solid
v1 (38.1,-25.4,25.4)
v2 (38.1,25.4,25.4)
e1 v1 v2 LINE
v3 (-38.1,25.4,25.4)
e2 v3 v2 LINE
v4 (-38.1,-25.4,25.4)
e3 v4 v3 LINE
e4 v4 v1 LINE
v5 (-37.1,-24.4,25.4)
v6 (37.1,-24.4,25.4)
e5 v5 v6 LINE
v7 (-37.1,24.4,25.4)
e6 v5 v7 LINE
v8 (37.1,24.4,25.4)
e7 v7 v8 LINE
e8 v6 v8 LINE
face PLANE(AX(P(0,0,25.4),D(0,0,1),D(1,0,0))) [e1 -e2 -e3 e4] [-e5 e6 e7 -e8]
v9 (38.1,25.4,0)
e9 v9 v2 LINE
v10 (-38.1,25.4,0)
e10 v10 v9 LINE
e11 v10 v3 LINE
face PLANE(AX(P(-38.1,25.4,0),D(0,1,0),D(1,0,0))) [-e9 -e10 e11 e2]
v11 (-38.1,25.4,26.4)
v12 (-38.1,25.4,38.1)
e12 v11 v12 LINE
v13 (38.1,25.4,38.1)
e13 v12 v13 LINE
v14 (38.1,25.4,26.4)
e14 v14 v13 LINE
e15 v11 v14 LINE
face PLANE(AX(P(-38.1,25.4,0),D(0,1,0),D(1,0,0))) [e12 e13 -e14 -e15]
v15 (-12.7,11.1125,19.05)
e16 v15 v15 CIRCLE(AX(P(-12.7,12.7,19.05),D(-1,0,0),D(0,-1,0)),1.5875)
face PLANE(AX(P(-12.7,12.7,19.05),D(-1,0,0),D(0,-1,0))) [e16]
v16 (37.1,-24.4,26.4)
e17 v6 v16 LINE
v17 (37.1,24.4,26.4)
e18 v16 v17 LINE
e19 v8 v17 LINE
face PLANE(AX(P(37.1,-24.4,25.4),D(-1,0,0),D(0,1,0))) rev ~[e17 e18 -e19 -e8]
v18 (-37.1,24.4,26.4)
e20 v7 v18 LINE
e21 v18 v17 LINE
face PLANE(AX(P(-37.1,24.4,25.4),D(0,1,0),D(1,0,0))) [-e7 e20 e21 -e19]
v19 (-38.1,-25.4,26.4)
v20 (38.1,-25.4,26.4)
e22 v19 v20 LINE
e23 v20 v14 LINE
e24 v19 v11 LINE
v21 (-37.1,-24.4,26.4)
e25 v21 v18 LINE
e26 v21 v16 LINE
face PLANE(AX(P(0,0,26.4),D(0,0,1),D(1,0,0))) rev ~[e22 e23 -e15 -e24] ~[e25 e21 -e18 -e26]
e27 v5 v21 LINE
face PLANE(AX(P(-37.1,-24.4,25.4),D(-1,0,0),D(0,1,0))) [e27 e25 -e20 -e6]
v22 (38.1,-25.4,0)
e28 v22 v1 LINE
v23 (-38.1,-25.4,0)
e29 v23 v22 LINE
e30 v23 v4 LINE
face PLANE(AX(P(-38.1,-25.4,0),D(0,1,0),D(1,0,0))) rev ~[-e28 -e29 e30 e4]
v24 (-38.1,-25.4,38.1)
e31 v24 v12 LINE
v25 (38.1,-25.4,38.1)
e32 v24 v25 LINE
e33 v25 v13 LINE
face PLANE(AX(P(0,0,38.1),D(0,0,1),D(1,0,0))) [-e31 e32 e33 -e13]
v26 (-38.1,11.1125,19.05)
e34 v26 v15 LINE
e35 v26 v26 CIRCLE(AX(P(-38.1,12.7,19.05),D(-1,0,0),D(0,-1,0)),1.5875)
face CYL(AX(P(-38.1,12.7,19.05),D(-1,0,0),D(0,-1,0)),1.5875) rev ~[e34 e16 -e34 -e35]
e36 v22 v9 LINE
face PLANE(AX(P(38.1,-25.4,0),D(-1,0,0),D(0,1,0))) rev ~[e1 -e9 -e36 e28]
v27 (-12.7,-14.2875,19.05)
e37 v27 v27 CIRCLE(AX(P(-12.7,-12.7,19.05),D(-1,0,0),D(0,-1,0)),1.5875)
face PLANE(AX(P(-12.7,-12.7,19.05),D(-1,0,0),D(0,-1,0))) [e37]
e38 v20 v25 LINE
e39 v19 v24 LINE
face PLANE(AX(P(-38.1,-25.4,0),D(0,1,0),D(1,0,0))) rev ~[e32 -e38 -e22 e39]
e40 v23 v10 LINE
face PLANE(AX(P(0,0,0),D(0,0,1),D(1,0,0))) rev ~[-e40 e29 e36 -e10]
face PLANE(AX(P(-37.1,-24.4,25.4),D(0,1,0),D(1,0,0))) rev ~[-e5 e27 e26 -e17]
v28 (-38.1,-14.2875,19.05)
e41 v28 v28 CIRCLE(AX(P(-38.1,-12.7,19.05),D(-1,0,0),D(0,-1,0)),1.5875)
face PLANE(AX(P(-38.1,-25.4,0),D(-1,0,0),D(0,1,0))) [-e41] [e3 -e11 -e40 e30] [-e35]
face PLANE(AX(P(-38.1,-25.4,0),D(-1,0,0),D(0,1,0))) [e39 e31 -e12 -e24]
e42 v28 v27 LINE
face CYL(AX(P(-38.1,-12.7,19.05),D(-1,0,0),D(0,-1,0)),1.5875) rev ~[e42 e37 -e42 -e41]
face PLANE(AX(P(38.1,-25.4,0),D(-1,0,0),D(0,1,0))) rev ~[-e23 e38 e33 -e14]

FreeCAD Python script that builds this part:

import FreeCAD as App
import Part
import Sketcher
Q = App.Units.Quantity

doc = App.newDocument("Part")
body = doc.addObject("PartDesign::Body", "Body")

# Sketch on XY plane
sketch1 = body.newObject("Sketcher::SketchObject", "Sketch")
sketch1.AttachmentSupport = (doc.getObject("XY_Plane"), [""])
sketch1.MapMode = "FlatFace"
sketch1.addGeometry([
    Part.LineSegment(App.Vector(-38, 25, 0), App.Vector(-38, -25, 0)),
    Part.LineSegment(App.Vector(-38, -25, 0), App.Vector(38, -25, 0)),
    Part.LineSegment(App.Vector(38, -25, 0), App.Vector(38, 25, 0)),
    Part.LineSegment(App.Vector(38, 25, 0), App.Vector(-38, 25, 0)),
], False)
sketch1.addConstraint([
    Sketcher.Constraint("Coincident", 0, 2, 1, 1),
    Sketcher.Constraint("Coincident", 1, 2, 2, 1),
    Sketcher.Constraint("Coincident", 2, 2, 3, 1),
    Sketcher.Constraint("Coincident", 3, 2, 0, 1),
    Sketcher.Constraint("Vertical", 0),
    Sketcher.Constraint("Horizontal", 1),
    Sketcher.Constraint("Vertical", 2),
    Sketcher.Constraint("Horizontal", 3),
    Sketcher.Constraint("Symmetric", 0, 2, 2, 2, -1, 1),
    Sketcher.Constraint("DistanceX", 1, 1, 1, 2, Q("3 in")),
    Sketcher.Constraint("DistanceY", 0, 2, 0, 1, Q("2 in")),
])
pad1 = body.newObject("PartDesign::Pad", "Pad")
pad1.Profile = sketch1
pad1.Length = Q("1.5 in")

# Sketch on XY plane
sketch2 = body.newObject("Sketcher::SketchObject", "Sketch001")
sketch2.AttachmentSupport = (doc.getObject("XY_Plane"), [""])
sketch2.MapMode = "FlatFace"
sketch2.AttachmentOffset = App.Placement(App.Vector(0, 0, 1 * 25.4), App.Rotation())
sketch2.addGeometry([
    Part.LineSegment(App.Vector(-38, 25, 0), App.Vector(-38, -25, 0)),  # 0
    Part.LineSegment(App.Vector(-38, -25, 0), App.Vector(38, -25, 0)),  # 1
    Part.LineSegment(App.Vector(38, -25, 0), App.Vector(38, 25, 0)),  # 2
    Part.LineSegment(App.Vector(38, 25, 0), App.Vector(-38, 25, 0)),  # 3
    Part.LineSegment(App.Vector(37, -24, 0), App.Vector(-37, -24, 0)),  # 4
    Part.LineSegment(App.Vector(-37, -24, 0), App.Vector(-37, 24, 0)),  # 5
    Part.LineSegment(App.Vector(-37, 24, 0), App.Vector(37, 24, 0)),  # 6
    Part.LineSegment(App.Vector(37, 24, 0), App.Vector(37, -24, 0)),  # 7
], False)
sketch2.addConstraint([
    Sketcher.Constraint("Coincident", 0, 2, 1, 1),
    Sketcher.Constraint("Coincident", 1, 2, 2, 1),
    Sketcher.Constraint("Coincident", 2, 2, 3, 1),
    Sketcher.Constraint("Coincident", 3, 2, 0, 1),
    Sketcher.Constraint("Coincident", 4, 2, 5, 1),
    Sketcher.Constraint("Coincident", 5, 2, 6, 1),
    Sketcher.Constraint("Coincident", 6, 2, 7, 1),
    Sketcher.Constraint("Coincident", 7, 2, 4, 1),
    Sketcher.Constraint("Vertical", 0),
    Sketcher.Constraint("Horizontal", 1),
    Sketcher.Constraint("Vertical", 2),
    Sketcher.Constraint("Horizontal", 3),
    Sketcher.Constraint("Horizontal", 4),
    Sketcher.Constraint("Vertical", 5),
    Sketcher.Constraint("Horizontal", 6),
    Sketcher.Constraint("Vertical", 7),
    Sketcher.Constraint("Symmetric", 0, 2, 2, 2, -1, 1),
    Sketcher.Constraint("Symmetric", 4, 2, 6, 2, -1, 1),
    Sketcher.Constraint("DistanceX", 1, 1, 1, 2, Q("3 in")),
    Sketcher.Constraint("DistanceY", 0, 2, 0, 1, Q("2 in")),
    Sketcher.Constraint("DistanceX", 4, 2, 4, 1, Q("74.2 mm")),
    Sketcher.Constraint("DistanceY", 5, 1, 5, 2, Q("48.8 mm")),
])
pocket1 = body.newObject("PartDesign::Pocket", "Pocket")
pocket1.Profile = sketch2
pocket1.Length = 1
pocket1.Reversed = True

# Sketch on YZ plane
sketch3 = body.newObject("Sketcher::SketchObject", "Sketch002")
sketch3.AttachmentSupport = (doc.getObject("YZ_Plane"), [""])
sketch3.MapMode = "FlatFace"
sketch3.AttachmentOffset = App.Placement(App.Vector(0, 0, -1.5 * 25.4), App.Rotation())
sketch3.addGeometry([
    Part.Circle(App.Vector(12.7, 19.1, 0), App.Vector(0, 0, 1), 1.6),
    Part.Circle(App.Vector(-12.7, 19.1, 0), App.Vector(0, 0, 1), 1.6),
], False)
sketch3.addConstraint([
    Sketcher.Constraint("Equal", 0, 1),
    Sketcher.Constraint("Symmetric", 0, 3, 1, 3, -2),
    Sketcher.Constraint("Diameter", 0, Q("0.125 in")),
    Sketcher.Constraint("DistanceX", 1, 3, 0, 3, Q("1 in")),
    Sketcher.Constraint("DistanceY", -1, 1, 0, 3, Q("0.75 in")),
])
pocket2 = body.newObject("PartDesign::Pocket", "Pocket001")
pocket2.Profile = sketch3
pocket2.Length = Q("1 in")
pocket2.Reversed = True

doc.recompute()
